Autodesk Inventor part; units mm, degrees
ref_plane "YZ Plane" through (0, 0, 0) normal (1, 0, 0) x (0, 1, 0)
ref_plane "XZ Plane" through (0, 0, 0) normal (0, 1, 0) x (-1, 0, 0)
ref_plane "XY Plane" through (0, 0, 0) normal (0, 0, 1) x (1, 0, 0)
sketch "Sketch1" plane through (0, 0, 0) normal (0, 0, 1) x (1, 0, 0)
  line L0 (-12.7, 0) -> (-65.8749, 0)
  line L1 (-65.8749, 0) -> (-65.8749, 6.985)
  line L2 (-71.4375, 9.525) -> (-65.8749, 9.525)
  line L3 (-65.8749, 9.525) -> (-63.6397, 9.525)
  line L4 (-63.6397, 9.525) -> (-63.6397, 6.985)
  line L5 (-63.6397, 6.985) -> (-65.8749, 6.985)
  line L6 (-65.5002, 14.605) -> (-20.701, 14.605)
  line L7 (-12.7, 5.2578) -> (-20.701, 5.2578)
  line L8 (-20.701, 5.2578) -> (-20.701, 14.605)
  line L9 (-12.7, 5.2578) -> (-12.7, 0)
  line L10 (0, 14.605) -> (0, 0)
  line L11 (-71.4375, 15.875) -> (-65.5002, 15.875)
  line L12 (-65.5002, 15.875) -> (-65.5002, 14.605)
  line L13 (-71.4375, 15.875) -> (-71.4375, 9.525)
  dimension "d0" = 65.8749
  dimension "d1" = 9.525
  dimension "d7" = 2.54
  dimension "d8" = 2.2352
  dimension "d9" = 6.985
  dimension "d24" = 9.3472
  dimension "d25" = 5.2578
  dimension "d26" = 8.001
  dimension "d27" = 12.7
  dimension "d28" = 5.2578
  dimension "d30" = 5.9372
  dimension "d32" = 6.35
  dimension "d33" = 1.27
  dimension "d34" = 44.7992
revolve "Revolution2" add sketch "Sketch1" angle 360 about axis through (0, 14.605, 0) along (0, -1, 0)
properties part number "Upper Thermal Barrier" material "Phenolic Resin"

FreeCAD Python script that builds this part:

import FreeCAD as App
import Part
import Sketcher

V = App.Vector
Q = App.Units.Quantity

doc = App.newDocument("Part")
params = doc.addObject("Spreadsheet::Sheet", "Params")
for row, (alias, value) in enumerate([
    ("sketch1_height", "0.1 in"),
    ("sketch1_height2", "0.05 in"),
    ("sketch1_height3", "0.25 in"),
    ("sketch1_width", "0.315 in"),
    ("sketch1_width2", "0.088 in"),
    ("revolution_angle", "360 deg"),
], start=1):
    params.set(f"A{row}", alias)
    params.set(f"B{row}", "=" + value)
    params.setAlias(f"B{row}", alias)

body = doc.addObject("PartDesign::Body", "Body")

# Sketch on XY plane
sketch1 = doc.addObject("Sketcher::SketchObject", "Sketch")
body.addObject(sketch1)
sketch1.AttachmentSupport = (doc.XY_Plane, [""])
sketch1.MapMode = "FlatFace"
sketch1.addGeometry([
    Part.LineSegment(V(-65.9, 0, 0), V(-12.7, 0, 0)),  # 0
    Part.LineSegment(V(-12.7, 0, 0), V(-12.7, 5.3, 0)),  # 1
    Part.LineSegment(V(-12.7, 5.3, 0), V(-20.7, 5.3, 0)),  # 2
    Part.LineSegment(V(-20.7, 5.3, 0), V(-20.7, 14.6, 0)),  # 3
    Part.LineSegment(V(-20.7, 14.6, 0), V(-65.5, 14.6, 0)),  # 4
    Part.LineSegment(V(-65.5, 14.6, 0), V(-65.5, 15.9, 0)),  # 5
    Part.LineSegment(V(-65.5, 15.9, 0), V(-71.4, 15.9, 0)),  # 6
    Part.LineSegment(V(-71.4, 15.9, 0), V(-71.4, 9.5, 0)),  # 7
    Part.LineSegment(V(-71.4, 9.5, 0), V(-63.6, 9.5, 0)),  # 8
    Part.LineSegment(V(-63.6, 9.5, 0), V(-63.6, 7, 0)),  # 9
    Part.LineSegment(V(-63.6, 7, 0), V(-65.9, 7, 0)),  # 10
    Part.LineSegment(V(-65.9, 7, 0), V(-65.9, 0, 0)),  # 11
], False)
sketch1.addConstraint([
    Sketcher.Constraint("Coincident", 0, 2, 1, 1),
    Sketcher.Constraint("Coincident", 1, 2, 2, 1),
    Sketcher.Constraint("Coincident", 2, 2, 3, 1),
    Sketcher.Constraint("Coincident", 3, 2, 4, 1),
    Sketcher.Constraint("Coincident", 4, 2, 5, 1),
    Sketcher.Constraint("Coincident", 5, 2, 6, 1),
    Sketcher.Constraint("Coincident", 6, 2, 7, 1),
    Sketcher.Constraint("Coincident", 7, 2, 8, 1),
    Sketcher.Constraint("Coincident", 8, 2, 9, 1),
    Sketcher.Constraint("Coincident", 9, 2, 10, 1),
    Sketcher.Constraint("Coincident", 10, 2, 11, 1),
    Sketcher.Constraint("Coincident", 11, 2, 0, 1),
    Sketcher.Constraint("Horizontal", 0),
    Sketcher.Constraint("Vertical", 1),
    Sketcher.Constraint("Horizontal", 2),
    Sketcher.Constraint("Vertical", 3),
    Sketcher.Constraint("Horizontal", 4),
    Sketcher.Constraint("Vertical", 5),
    Sketcher.Constraint("Horizontal", 6),
    Sketcher.Constraint("Vertical", 7),
    Sketcher.Constraint("Horizontal", 8),
    Sketcher.Constraint("Vertical", 9),
    Sketcher.Constraint("Horizontal", 10),
    Sketcher.Constraint("Vertical", 11),
    Sketcher.Constraint("PointOnObject", 0, 2, -1),
    Sketcher.Constraint("DistanceY", 9, 2, 9, 1, Q("0.1 in")),
    Sketcher.Constraint("DistanceY", 5, 1, 5, 2, Q("0.05 in")),
    Sketcher.Constraint("DistanceY", 7, 2, 7, 1, Q("0.25 in")),
    Sketcher.Constraint("DistanceX", 0, 2, -1, 1, Q("0.5 in")),
    Sketcher.Constraint("DistanceX", 2, 2, 2, 1, Q("0.315 in")),
    Sketcher.Constraint("DistanceX", 10, 2, 10, 1, Q("0.088 in")),
    Sketcher.Constraint("DistanceY", 1, 1, 1, 2, Q("0.207 in")),
    Sketcher.Constraint("DistanceY", 3, 1, 3, 2, Q("0.368 in")),
    Sketcher.Constraint("DistanceX", 4, 2, 4, 1, Q("44.7992 mm")),
    Sketcher.Constraint("DistanceX", 6, 2, 6, 1, Q("5.9373 mm")),
    Sketcher.Constraint("DistanceX", 10, 2, -1, 1, Q("2.5935 in")),
])
sketch1.setExpression("Constraints[25]", "Params.sketch1_height")
sketch1.setExpression("Constraints[26]", "Params.sketch1_height2")
sketch1.setExpression("Constraints[27]", "Params.sketch1_height3")
sketch1.setExpression("Constraints[29]", "Params.sketch1_width")
sketch1.setExpression("Constraints[30]", "Params.sketch1_width2")
revolution = doc.addObject("PartDesign::Revolution", "Revolution")
body.addObject(revolution)
revolution.Profile = sketch1
revolution.ReferenceAxis = (sketch1, ["V_Axis"])
revolution.setExpression("Angle", "Params.revolution_angle")

doc.recompute()
